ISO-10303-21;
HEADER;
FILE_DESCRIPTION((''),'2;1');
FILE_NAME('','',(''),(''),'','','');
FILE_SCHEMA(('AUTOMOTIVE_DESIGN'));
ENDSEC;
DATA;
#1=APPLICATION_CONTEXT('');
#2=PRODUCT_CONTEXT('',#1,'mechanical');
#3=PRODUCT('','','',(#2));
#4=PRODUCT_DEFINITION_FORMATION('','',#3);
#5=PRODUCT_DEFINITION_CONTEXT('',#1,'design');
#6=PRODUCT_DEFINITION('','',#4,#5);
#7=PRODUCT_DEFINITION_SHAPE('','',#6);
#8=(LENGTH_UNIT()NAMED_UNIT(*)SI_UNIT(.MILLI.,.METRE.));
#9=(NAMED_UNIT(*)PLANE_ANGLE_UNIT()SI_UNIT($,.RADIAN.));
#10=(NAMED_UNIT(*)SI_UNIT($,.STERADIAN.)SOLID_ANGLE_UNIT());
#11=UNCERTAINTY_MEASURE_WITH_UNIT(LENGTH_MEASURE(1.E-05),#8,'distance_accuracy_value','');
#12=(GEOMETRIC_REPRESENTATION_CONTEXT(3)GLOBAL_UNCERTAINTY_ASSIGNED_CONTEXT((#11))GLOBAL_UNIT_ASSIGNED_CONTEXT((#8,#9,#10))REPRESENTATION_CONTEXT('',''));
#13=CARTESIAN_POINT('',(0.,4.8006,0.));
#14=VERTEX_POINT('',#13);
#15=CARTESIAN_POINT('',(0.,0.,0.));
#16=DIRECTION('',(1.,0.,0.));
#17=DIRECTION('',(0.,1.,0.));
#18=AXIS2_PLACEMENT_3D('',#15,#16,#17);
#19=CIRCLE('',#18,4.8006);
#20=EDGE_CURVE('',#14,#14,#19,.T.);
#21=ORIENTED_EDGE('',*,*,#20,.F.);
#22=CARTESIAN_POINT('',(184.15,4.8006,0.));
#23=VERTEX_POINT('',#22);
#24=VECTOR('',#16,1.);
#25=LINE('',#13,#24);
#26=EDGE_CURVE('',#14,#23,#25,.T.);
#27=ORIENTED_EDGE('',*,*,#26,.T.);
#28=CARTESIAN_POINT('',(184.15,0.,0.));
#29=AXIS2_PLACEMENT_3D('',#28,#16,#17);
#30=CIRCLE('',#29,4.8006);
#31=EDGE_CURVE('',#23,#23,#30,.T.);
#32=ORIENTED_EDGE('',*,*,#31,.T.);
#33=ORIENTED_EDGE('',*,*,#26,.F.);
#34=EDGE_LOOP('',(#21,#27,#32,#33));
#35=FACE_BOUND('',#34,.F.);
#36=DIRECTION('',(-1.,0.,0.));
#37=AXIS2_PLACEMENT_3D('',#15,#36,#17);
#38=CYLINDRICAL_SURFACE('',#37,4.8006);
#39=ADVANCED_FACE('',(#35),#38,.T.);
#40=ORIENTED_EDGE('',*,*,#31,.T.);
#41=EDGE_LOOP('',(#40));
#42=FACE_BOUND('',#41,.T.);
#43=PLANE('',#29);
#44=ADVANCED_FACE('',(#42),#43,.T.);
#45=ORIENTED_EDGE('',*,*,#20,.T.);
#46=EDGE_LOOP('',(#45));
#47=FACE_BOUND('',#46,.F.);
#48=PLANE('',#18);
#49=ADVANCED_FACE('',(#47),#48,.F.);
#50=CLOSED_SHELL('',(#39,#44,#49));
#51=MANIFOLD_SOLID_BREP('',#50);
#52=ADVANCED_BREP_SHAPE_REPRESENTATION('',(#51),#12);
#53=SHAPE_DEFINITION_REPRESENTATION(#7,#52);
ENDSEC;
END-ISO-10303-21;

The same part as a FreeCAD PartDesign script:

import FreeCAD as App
import Part
import Sketcher
from FreeCAD import Vector
Q = App.Units.Quantity

doc = App.newDocument("Part")
body = doc.addObject("PartDesign::Body", "Body")

# Sketch on YZ plane
sketch1 = body.newObject("Sketcher::SketchObject", "Sketch")
sketch1.AttachmentSupport = (doc.getObject("YZ_Plane"), [""])
sketch1.MapMode = "FlatFace"
sketch1.addGeometry(Part.Circle(Vector(0, 0, 0), Vector(0, 0, 1), 4.8), False)
sketch1.addConstraint(Sketcher.Constraint("Coincident", 0, 3, -1, 1))
sketch1.addConstraint(Sketcher.Constraint("Diameter", 0, Q("0.378 in")))
pad1 = body.newObject("PartDesign::Pad", "Pad")
pad1.Profile = sketch1
pad1.Length = Q("7.25 in")

doc.recompute()
